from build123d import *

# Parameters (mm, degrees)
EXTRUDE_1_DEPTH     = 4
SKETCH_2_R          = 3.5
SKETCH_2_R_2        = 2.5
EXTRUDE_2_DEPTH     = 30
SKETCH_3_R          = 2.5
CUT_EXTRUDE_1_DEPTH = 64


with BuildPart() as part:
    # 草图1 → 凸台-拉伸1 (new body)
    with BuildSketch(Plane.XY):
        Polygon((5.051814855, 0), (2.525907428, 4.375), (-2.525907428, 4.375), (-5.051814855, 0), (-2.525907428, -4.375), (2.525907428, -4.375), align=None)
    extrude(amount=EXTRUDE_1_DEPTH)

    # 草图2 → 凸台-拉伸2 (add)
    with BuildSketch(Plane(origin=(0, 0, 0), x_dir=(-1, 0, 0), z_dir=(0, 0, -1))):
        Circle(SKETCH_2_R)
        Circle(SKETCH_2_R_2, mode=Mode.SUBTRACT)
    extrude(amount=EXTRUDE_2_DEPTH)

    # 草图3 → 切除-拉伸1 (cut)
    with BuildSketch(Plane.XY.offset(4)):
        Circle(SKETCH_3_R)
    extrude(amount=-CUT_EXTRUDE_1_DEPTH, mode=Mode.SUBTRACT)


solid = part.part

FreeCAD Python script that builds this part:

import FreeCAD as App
import Part
import Sketcher

V = App.Vector
Q = App.Units.Quantity


def add_polygon(sketch, points):
    """Adds a closed chain of lines whose ends are joined by coincident constraints."""
    first, n = sketch.GeometryCount, len(points)
    for a, b in zip(points, points[1:] + points[:1]):
        sketch.addGeometry(Part.LineSegment(App.Vector(*a, 0), App.Vector(*b, 0)), False)
    for i in range(n):
        sketch.addConstraint(Sketcher.Constraint("Coincident", first + i, 2, first + (i + 1) % n, 1))

doc = App.newDocument("Part")
params = doc.addObject("Spreadsheet::Sheet", "Params")
for row, (alias, value) in enumerate([
    ("pad1_length", "4 mm"),
    ("sketch2_diameter", "7 mm"),
    ("sketch2_diameter2", "5 mm"),
    ("pad2_length", "30 mm"),
    ("sketch3_diameter", "5 mm"),
    ("pocket1_length", "64 mm"),
], start=1):
    params.set(f"A{row}", alias)
    params.set(f"B{row}", "=" + value)
    params.setAlias(f"B{row}", alias)

body = doc.addObject("PartDesign::Body", "Body")

# Sketch on XY plane
sketch1 = body.newObject("Sketcher::SketchObject", "Sketch")
sketch1.AttachmentSupport = (doc.getObject("XY_Plane"), [""])
sketch1.MapMode = "FlatFace"
add_polygon(sketch1, [(5, 0), (3, 4), (-3, 4), (-5, 0), (-3, -4), (3, -4)])  # lines 0-5
sketch1.addConstraint(Sketcher.Constraint("Horizontal", 1))
sketch1.addConstraint(Sketcher.Constraint("Horizontal", 4))
sketch1.addConstraint(Sketcher.Constraint("Symmetric", 0, 2, 3, 2, -1, 1))
sketch1.addConstraint(Sketcher.Constraint("Symmetric", 2, 2, 5, 2, -1, 1))
sketch1.addConstraint(Sketcher.Constraint("PointOnObject", 2, 2, -1))
sketch1.addConstraint(Sketcher.Constraint("Parallel", 2, 5))
sketch1.addConstraint(Sketcher.Constraint("Vertical", 1, 2, 3, 2))
sketch1.addConstraint(Sketcher.Constraint("Angle", 0, Q("120 deg")))
sketch1.addConstraint(Sketcher.Constraint("DistanceY", 3, 2, 1, 2, 8.75))
sketch1.addConstraint(Sketcher.Constraint("DistanceX", 1, 2, 1, 1, 5.051815))
pad1 = body.newObject("PartDesign::Pad", "Pad")
pad1.Profile = sketch1
pad1.setExpression("Length", "Params.pad1_length")

# Sketch on XY plane
sketch2 = body.newObject("Sketcher::SketchObject", "Sketch001")
sketch2.AttachmentSupport = (doc.getObject("XY_Plane"), [""])
sketch2.MapMode = "FlatFace"
sketch2.addGeometry(Part.Circle(V(0, 0, 0), V(0, 0, 1), 3.5), False)
sketch2.addGeometry(Part.Circle(V(0, 0, 0), V(0, 0, 1), 2.5), False)
sketch2.addConstraint(Sketcher.Constraint("Coincident", 0, 3, -1, 1))
sketch2.addConstraint(Sketcher.Constraint("Coincident", 1, 3, -1, 1))
sketch2.addConstraint(Sketcher.Constraint("Diameter", 0, 7.0))
sketch2.addConstraint(Sketcher.Constraint("Diameter", 1, 5.0))
sketch2.setExpression("Constraints[2]", "Params.sketch2_diameter")
sketch2.setExpression("Constraints[3]", "Params.sketch2_diameter2")
pad2 = body.newObject("PartDesign::Pad", "Pad001")
pad2.Profile = sketch2
pad2.setExpression("Length", "Params.pad2_length")
pad2.Reversed = True

# Sketch on XY plane
sketch3 = body.newObject("Sketcher::SketchObject", "Sketch002")
sketch3.AttachmentSupport = (doc.getObject("XY_Plane"), [""])
sketch3.MapMode = "FlatFace"
sketch3.AttachmentOffset = App.Placement(V(0, 0, 4), App.Rotation())
sketch3.addGeometry(Part.Circle(V(0, 0, 0), V(0, 0, 1), 2.5), False)
sketch3.addConstraint(Sketcher.Constraint("Coincident", 0, 3, -1, 1))
sketch3.addConstraint(Sketcher.Constraint("Diameter", 0, 5.0))
sketch3.setExpression("Constraints[1]", "Params.sketch3_diameter")
pocket1 = body.newObject("PartDesign::Pocket", "Pocket")
pocket1.Profile = sketch3
pocket1.setExpression("Length", "Params.pocket1_length")

doc.recompute()
